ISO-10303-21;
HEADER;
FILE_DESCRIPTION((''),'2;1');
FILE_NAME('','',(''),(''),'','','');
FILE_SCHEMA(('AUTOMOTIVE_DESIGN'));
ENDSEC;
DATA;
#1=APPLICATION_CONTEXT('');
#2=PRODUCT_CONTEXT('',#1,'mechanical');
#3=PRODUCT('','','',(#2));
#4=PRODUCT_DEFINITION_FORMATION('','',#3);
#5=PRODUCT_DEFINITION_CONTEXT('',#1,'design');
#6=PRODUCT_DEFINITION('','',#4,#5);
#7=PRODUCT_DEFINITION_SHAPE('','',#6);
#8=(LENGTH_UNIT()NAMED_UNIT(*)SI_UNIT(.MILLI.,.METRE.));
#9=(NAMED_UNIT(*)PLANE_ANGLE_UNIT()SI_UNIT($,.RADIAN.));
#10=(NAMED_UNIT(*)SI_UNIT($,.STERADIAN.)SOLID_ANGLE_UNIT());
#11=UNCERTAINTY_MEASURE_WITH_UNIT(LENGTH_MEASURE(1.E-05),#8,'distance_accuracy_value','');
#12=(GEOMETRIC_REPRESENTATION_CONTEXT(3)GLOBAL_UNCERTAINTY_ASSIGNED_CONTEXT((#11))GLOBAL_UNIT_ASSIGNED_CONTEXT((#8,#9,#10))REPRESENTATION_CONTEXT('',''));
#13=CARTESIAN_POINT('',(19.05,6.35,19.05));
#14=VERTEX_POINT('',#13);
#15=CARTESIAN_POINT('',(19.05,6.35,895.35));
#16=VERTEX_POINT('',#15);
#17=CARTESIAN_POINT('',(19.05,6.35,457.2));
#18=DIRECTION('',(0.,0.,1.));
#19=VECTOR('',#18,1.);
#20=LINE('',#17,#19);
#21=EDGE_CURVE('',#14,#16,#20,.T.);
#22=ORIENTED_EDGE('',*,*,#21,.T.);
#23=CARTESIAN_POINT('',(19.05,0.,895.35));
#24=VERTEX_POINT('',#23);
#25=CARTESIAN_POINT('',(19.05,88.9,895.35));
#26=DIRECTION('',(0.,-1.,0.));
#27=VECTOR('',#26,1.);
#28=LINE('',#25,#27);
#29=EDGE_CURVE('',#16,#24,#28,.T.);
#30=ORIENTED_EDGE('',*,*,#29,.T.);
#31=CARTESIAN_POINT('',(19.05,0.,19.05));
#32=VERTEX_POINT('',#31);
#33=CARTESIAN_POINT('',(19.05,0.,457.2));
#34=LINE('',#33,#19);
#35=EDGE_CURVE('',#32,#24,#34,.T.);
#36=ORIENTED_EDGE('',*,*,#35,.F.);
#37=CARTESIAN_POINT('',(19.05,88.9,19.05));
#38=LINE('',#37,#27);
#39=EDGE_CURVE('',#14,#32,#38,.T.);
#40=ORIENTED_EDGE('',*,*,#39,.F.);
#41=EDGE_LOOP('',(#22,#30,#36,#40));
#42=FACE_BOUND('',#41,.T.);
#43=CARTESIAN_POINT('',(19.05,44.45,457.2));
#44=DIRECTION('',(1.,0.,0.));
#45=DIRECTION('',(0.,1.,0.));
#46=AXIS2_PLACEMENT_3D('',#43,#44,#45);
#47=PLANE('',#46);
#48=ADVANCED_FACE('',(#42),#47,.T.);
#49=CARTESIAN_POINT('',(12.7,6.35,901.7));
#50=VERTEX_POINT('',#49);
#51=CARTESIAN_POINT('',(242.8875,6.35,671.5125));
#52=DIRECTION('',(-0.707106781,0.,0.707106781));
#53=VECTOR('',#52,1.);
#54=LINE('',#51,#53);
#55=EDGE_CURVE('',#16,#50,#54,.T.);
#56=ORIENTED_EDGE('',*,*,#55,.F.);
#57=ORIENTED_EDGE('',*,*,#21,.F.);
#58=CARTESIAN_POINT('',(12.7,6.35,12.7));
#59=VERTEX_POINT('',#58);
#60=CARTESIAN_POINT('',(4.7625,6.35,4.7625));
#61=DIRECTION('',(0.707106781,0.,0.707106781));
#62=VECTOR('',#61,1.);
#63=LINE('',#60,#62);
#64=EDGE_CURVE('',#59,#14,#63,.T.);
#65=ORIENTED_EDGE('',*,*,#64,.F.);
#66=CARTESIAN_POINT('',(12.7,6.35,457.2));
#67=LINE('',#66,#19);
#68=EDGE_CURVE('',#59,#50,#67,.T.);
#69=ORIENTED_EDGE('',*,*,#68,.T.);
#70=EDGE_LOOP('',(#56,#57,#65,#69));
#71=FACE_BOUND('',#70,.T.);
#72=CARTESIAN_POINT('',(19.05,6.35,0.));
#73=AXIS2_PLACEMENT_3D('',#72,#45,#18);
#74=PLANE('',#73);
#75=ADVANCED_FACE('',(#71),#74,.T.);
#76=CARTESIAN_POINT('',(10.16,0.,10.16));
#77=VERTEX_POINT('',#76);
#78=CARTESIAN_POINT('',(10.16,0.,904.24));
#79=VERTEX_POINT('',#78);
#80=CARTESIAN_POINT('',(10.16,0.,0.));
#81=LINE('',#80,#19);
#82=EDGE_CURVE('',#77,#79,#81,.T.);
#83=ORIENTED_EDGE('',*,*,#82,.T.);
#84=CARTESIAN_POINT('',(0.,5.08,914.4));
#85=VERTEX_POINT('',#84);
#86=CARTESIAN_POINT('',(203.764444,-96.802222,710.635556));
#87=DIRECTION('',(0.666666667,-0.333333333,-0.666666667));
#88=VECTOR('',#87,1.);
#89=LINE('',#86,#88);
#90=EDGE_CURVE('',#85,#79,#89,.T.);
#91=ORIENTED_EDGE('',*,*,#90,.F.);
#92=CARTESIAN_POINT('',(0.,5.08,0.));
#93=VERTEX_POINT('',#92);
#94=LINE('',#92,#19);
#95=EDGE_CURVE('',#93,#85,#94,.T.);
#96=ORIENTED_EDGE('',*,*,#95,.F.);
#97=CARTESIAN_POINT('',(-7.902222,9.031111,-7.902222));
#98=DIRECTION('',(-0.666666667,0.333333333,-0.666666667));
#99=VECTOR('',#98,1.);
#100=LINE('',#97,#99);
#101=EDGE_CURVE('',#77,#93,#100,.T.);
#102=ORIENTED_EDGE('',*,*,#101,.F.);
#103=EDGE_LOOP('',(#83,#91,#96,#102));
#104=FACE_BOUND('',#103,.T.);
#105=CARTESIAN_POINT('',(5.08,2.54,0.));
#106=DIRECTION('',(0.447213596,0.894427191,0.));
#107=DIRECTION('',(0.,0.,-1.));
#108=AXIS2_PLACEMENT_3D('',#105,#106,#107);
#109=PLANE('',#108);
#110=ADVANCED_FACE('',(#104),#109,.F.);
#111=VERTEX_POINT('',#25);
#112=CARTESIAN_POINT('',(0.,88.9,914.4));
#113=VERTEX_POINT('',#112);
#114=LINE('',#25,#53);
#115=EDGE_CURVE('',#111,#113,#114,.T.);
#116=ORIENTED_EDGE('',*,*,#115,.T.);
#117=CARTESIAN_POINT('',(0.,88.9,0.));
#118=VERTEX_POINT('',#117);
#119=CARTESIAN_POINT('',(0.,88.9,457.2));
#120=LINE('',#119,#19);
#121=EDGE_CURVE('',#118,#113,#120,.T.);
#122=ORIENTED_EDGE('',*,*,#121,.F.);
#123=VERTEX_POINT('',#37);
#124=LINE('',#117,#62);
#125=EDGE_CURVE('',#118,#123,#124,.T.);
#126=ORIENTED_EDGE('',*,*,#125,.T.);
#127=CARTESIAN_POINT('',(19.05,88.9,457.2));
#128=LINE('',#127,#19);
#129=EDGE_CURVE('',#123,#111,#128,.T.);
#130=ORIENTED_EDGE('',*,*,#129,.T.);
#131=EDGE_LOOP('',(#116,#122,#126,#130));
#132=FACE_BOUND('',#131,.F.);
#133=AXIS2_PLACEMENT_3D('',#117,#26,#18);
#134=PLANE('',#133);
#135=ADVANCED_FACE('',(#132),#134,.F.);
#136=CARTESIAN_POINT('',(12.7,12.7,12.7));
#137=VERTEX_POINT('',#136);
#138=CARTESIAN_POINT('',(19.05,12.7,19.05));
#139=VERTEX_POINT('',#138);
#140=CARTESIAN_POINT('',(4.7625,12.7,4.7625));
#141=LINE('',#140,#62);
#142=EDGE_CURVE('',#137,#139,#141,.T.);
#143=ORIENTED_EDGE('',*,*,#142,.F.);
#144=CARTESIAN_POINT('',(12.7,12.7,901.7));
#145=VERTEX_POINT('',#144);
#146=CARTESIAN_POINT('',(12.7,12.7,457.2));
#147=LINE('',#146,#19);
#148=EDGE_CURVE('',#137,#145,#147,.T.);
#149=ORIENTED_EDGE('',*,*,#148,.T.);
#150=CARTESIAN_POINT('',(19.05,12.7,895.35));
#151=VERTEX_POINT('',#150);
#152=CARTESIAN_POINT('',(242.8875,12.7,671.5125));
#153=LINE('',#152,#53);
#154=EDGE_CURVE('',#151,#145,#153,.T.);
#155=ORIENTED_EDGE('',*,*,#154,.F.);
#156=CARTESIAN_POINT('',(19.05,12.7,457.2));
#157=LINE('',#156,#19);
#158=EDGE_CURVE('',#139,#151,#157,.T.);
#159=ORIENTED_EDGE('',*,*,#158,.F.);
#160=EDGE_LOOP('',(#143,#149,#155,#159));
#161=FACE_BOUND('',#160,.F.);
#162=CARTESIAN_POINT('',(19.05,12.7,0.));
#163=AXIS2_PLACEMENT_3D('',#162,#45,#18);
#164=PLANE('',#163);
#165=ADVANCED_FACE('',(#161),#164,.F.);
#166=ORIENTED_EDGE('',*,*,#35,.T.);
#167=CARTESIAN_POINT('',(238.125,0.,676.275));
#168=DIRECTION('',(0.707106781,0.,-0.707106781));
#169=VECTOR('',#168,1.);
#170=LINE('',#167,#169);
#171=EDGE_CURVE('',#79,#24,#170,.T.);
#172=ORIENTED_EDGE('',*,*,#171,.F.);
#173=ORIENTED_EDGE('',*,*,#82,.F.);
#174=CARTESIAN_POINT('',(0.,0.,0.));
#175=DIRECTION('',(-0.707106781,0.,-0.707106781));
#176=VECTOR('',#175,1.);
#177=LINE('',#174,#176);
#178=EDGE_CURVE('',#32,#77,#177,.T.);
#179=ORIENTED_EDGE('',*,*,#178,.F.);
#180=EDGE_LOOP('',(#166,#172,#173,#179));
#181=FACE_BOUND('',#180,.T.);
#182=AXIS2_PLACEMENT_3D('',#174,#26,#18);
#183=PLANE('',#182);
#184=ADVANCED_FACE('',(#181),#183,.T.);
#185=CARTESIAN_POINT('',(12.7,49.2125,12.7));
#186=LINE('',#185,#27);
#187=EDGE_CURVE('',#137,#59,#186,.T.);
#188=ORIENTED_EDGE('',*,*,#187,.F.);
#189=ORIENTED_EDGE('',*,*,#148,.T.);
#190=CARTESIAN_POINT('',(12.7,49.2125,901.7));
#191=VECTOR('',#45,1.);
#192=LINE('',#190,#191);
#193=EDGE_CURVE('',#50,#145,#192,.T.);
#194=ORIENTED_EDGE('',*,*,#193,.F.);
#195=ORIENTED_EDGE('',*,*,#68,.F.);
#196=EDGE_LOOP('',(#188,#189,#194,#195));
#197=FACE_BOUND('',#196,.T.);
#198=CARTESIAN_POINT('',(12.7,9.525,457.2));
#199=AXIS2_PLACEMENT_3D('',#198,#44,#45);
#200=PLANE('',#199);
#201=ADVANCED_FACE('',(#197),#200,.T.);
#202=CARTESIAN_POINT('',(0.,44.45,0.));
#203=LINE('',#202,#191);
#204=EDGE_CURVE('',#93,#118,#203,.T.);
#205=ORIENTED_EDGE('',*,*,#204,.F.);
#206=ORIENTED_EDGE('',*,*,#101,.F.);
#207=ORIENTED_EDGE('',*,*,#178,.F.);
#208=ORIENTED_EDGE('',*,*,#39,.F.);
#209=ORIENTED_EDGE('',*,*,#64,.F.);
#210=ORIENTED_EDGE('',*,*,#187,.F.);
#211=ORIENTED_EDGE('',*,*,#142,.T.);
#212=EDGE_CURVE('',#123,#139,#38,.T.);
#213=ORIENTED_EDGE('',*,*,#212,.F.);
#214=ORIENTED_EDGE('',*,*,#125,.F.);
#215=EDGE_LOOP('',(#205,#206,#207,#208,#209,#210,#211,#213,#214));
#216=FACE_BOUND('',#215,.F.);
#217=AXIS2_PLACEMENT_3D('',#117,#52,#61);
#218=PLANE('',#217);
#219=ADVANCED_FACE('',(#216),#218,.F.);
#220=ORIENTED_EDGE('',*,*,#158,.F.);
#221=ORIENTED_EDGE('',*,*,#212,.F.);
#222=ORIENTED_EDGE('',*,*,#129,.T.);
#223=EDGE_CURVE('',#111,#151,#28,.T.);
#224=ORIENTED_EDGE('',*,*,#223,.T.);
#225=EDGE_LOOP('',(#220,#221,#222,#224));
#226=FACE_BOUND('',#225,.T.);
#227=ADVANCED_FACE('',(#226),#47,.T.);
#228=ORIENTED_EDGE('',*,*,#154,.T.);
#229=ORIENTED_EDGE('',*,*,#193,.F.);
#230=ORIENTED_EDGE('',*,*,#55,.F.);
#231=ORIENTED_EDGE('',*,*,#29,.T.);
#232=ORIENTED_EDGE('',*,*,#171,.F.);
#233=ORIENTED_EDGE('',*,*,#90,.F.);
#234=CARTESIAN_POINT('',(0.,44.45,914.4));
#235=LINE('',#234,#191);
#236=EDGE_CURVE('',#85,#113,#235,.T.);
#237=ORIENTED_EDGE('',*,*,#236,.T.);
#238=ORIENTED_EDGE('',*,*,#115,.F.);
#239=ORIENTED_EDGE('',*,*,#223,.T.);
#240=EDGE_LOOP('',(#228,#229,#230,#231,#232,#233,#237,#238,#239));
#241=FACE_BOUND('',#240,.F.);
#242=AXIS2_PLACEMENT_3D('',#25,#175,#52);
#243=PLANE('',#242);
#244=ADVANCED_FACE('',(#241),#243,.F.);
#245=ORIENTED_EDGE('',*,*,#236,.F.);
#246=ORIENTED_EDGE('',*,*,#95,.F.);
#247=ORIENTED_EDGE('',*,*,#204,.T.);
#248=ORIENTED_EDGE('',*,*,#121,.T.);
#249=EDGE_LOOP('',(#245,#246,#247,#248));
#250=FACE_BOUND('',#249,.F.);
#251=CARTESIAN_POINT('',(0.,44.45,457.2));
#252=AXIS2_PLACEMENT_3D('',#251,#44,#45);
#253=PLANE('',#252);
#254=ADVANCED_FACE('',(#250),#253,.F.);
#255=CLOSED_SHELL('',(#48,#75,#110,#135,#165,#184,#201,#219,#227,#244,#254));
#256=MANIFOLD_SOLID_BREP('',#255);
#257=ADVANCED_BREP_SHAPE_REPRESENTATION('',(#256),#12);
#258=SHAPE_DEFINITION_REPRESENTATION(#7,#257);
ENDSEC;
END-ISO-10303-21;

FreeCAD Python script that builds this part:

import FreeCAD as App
import Part
import Sketcher
Q = App.Units.Quantity


def edges_at(feature, points):
    """Names of the edges that pass closest to the given points."""
    edges = feature.Shape.Edges
    near = lambda p: min(range(len(edges)), key=lambda i: edges[i].distToShape(Part.Vertex(*p))[0])
    return sorted({f"Edge{near(p) + 1}" for p in points})

doc = App.newDocument("Part")
params = doc.addObject("Spreadsheet::Sheet", "Params")
for row, (alias, value) in enumerate([
    ("sketch1_height", "36 in"),
    ("sketch1_width", "3.5 in"),
    ("pad1_length", "0.75 in"),
    ("sketch2_height", "36 in"),
    ("sketch2_width", "0.25 in"),
    ("pocket1_length", "0.25 in"),
    ("chamfer_size", "0.4 in"),
    ("chamfer_size2", "0.2 in"),
    ("sketch3_width", "0.75 in"),
], start=1):
    params.set(f"A{row}", alias)
    params.set(f"B{row}", "=" + value)
    params.setAlias(f"B{row}", alias)

body = doc.addObject("PartDesign::Body", "Body")

sketch1 = doc.addObject("Sketcher::SketchObject", "Sketch")
body.addObject(sketch1)
sketch1.AttachmentSupport = (doc.YZ_Plane, [""])
sketch1.MapMode = "FlatFace"
sketch1.addGeometry([
    Part.LineSegment(App.Vector(0, 914, 0), App.Vector(0, 0, 0)),
    Part.LineSegment(App.Vector(0, 0, 0), App.Vector(89, 0, 0)),
    Part.LineSegment(App.Vector(89, 0, 0), App.Vector(89, 914, 0)),
    Part.LineSegment(App.Vector(89, 914, 0), App.Vector(0, 914, 0)),
], False)
sketch1.addConstraint([
    Sketcher.Constraint("Coincident", 0, 2, 1, 1),
    Sketcher.Constraint("Coincident", 1, 2, 2, 1),
    Sketcher.Constraint("Coincident", 2, 2, 3, 1),
    Sketcher.Constraint("Coincident", 3, 2, 0, 1),
    Sketcher.Constraint("Vertical", 0),
    Sketcher.Constraint("Horizontal", 1),
    Sketcher.Constraint("Vertical", 2),
    Sketcher.Constraint("Horizontal", 3),
    Sketcher.Constraint("Coincident", 0, 2, -1, 1),
    Sketcher.Constraint("DistanceY", 0, 2, 0, 1, Q("36 in")),
    Sketcher.Constraint("DistanceX", 1, 1, 1, 2, Q("3.5 in")),
])
sketch1.setExpression("Constraints[9]", "Params.sketch1_height")
sketch1.setExpression("Constraints[10]", "Params.sketch1_width")
pad1 = doc.addObject("PartDesign::Pad", "Pad")
body.addObject(pad1)
pad1.Profile = sketch1
pad1.setExpression("Length", "Params.pad1_length")

sketch2 = doc.addObject("Sketcher::SketchObject", "Sketch001")
body.addObject(sketch2)
sketch2.AttachmentSupport = (doc.YZ_Plane, [""])
sketch2.MapMode = "FlatFace"
sketch2.AttachmentOffset = App.Placement(App.Vector(0, 0, 0.75 * 25.4), App.Rotation())
sketch2.addGeometry([
    Part.LineSegment(App.Vector(6, 914, 0), App.Vector(6, 0, 0)),
    Part.LineSegment(App.Vector(6, 0, 0), App.Vector(13, 0, 0)),
    Part.LineSegment(App.Vector(13, 0, 0), App.Vector(13, 914, 0)),
    Part.LineSegment(App.Vector(13, 914, 0), App.Vector(6, 914, 0)),
], False)
sketch2.addConstraint([
    Sketcher.Constraint("Coincident", 0, 2, 1, 1),
    Sketcher.Constraint("Coincident", 1, 2, 2, 1),
    Sketcher.Constraint("Coincident", 2, 2, 3, 1),
    Sketcher.Constraint("Coincident", 3, 2, 0, 1),
    Sketcher.Constraint("Vertical", 0),
    Sketcher.Constraint("Horizontal", 1),
    Sketcher.Constraint("Vertical", 2),
    Sketcher.Constraint("Horizontal", 3),
    Sketcher.Constraint("PointOnObject", 0, 2, -1),
    Sketcher.Constraint("DistanceY", 0, 2, 0, 1, Q("36 in")),
    Sketcher.Constraint("DistanceX", 1, 1, 1, 2, Q("0.25 in")),
    Sketcher.Constraint("DistanceX", -1, 1, 1, 2, Q("0.5 in")),
])
sketch2.setExpression("Constraints[9]", "Params.sketch2_height")
sketch2.setExpression("Constraints[10]", "Params.sketch2_width")
pocket1 = doc.addObject("PartDesign::Pocket", "Pocket")
body.addObject(pocket1)
pocket1.Profile = sketch2
pocket1.setExpression("Length", "Params.pocket1_length")
doc.recompute()

chamfer = doc.addObject("PartDesign::Chamfer", "Chamfer")
body.addObject(chamfer)
chamfer.Base = (pocket1, edges_at(pocket1, [(0, 0, 457.2)]))
chamfer.ChamferType = "Two distances"
chamfer.setExpression("Size", "Params.chamfer_size")
chamfer.setExpression("Size2", "Params.chamfer_size2")

sketch3 = doc.addObject("Sketcher::SketchObject", "Sketch002")
body.addObject(sketch3)
sketch3.AttachmentSupport = (doc.XZ_Plane, [""])
sketch3.MapMode = "FlatFace"
sketch3.AttachmentOffset = App.Placement(App.Vector(0, 0, -3.5 * 25.4), App.Rotation())
sketch3.addGeometry([
    Part.LineSegment(App.Vector(19, 895, 0), App.Vector(0, 914, 0)),
    Part.LineSegment(App.Vector(0, 914, 0), App.Vector(19, 914, 0)),
    Part.LineSegment(App.Vector(19, 914, 0), App.Vector(19, 895, 0)),
    Part.LineSegment(App.Vector(19, 0, 0), App.Vector(0, 0, 0)),
    Part.LineSegment(App.Vector(0, 0, 0), App.Vector(19, 19, 0)),
    Part.LineSegment(App.Vector(19, 19, 0), App.Vector(19, 0, 0)),
], False)
sketch3.addConstraint([
    Sketcher.Constraint("Coincident", 0, 2, 1, 1),
    Sketcher.Constraint("Coincident", 1, 2, 2, 1),
    Sketcher.Constraint("Coincident", 2, 2, 0, 1),
    Sketcher.Constraint("Coincident", 3, 2, 4, 1),
    Sketcher.Constraint("Coincident", 4, 2, 5, 1),
    Sketcher.Constraint("Coincident", 5, 2, 3, 1),
    Sketcher.Constraint("Horizontal", 1),
    Sketcher.Constraint("Vertical", 2),
    Sketcher.Constraint("Horizontal", 3),
    Sketcher.Constraint("Vertical", 5),
    Sketcher.Constraint("Coincident", 3, 2, -1, 1),
    Sketcher.Constraint("PointOnObject", 0, 2, -2),
    Sketcher.Constraint("Perpendicular", 0, 4),
    Sketcher.Constraint("Vertical", 2, 2, 4, 2),
    Sketcher.Constraint("Equal", 3, 2),
    Sketcher.Constraint("DistanceY", -1, 1, 0, 2, Q("36 in")),
    Sketcher.Constraint("DistanceX", 1, 1, 1, 2, Q("0.75 in")),
])
sketch3.setExpression("Constraints[16]", "Params.sketch3_width")
pocket2 = doc.addObject("PartDesign::Pocket", "Pocket001")
body.addObject(pocket2)
pocket2.Profile = sketch3
pocket2.Type = "ThroughAll"
pocket2.Reversed = True

doc.recompute()
